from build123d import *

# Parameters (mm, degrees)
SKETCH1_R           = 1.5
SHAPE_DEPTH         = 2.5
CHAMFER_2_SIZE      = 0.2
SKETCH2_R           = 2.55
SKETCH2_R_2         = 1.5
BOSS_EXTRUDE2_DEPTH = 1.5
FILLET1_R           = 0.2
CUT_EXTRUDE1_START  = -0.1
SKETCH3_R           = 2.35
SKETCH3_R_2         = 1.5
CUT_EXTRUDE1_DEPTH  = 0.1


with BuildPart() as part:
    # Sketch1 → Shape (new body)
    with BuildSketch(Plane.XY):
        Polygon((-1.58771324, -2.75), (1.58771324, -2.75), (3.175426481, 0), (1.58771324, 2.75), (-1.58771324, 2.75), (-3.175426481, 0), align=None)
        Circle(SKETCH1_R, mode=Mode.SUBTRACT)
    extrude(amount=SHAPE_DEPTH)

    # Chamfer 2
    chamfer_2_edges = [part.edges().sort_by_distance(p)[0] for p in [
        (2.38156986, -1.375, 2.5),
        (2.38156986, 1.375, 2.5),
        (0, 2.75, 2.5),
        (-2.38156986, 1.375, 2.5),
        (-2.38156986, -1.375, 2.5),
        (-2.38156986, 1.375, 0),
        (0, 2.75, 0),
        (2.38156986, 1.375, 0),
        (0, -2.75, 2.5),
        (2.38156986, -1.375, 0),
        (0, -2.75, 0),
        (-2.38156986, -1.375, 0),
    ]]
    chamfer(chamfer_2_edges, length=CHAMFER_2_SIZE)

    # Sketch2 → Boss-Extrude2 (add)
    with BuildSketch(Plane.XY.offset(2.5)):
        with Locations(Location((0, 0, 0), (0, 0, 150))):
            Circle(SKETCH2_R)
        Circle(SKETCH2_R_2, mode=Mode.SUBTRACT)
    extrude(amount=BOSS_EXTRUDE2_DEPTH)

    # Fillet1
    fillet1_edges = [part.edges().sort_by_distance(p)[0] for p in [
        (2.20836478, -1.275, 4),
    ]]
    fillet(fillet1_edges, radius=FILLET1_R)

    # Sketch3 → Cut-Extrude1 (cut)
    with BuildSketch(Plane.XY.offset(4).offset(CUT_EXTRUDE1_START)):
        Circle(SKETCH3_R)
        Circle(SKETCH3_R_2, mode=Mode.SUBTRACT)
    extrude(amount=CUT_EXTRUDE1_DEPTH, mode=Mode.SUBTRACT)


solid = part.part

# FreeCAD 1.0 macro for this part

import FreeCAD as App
import Part
import Sketcher
Q = App.Units.Quantity


def edges_at(feature, points):
    """Names of the edges that pass closest to the given points."""
    edges = feature.Shape.Edges
    near = lambda p: min(range(len(edges)), key=lambda i: edges[i].distToShape(Part.Vertex(*p))[0])
    return sorted({f"Edge{near(p) + 1}" for p in points})


def add_polygon(sketch, points):
    """Adds a closed chain of lines whose ends are joined by coincident constraints."""
    first, n = sketch.GeometryCount, len(points)
    for a, b in zip(points, points[1:] + points[:1]):
        sketch.addGeometry(Part.LineSegment(App.Vector(*a, 0), App.Vector(*b, 0)), False)
    for i in range(n):
        sketch.addConstraint(Sketcher.Constraint("Coincident", first + i, 2, first + (i + 1) % n, 1))

doc = App.newDocument("Part")
body = doc.addObject("PartDesign::Body", "Body")

sketch1 = body.newObject("Sketcher::SketchObject", "Sketch")
sketch1.AttachmentSupport = (doc.getObject("XY_Plane"), [""])
sketch1.MapMode = "FlatFace"
add_polygon(sketch1, [(-1.6, -2.8), (1.6, -2.8), (3.2, 0), (1.6, 2.8), (-1.6, 2.8), (-3.2, 0)])
sketch1.addGeometry(Part.Circle(App.Vector(0, 0, 0), App.Vector(0, 0, 1), 1.5), False)
sketch1.addConstraint(Sketcher.Constraint("Horizontal", 0))
sketch1.addConstraint(Sketcher.Constraint("Horizontal", 3))
sketch1.addConstraint(Sketcher.Constraint("Coincident", 6, 3, -1, 1))
sketch1.addConstraint(Sketcher.Constraint("Symmetric", 0, 2, 3, 2, -1, 1))
sketch1.addConstraint(Sketcher.Constraint("Symmetric", 1, 2, 4, 2, -1, 1))
sketch1.addConstraint(Sketcher.Constraint("PointOnObject", 1, 2, -1))
sketch1.addConstraint(Sketcher.Constraint("Parallel", 2, 5))
sketch1.addConstraint(Sketcher.Constraint("Vertical", 0, 2, 2, 2))
sketch1.addConstraint(Sketcher.Constraint("Diameter", 6, Q("3 mm")))
sketch1.addConstraint(Sketcher.Constraint("Angle", 1, Q("60 deg")))
sketch1.addConstraint(Sketcher.Constraint("DistanceY", 0, 2, 2, 2, Q("5.5 mm")))
sketch1.addConstraint(Sketcher.Constraint("DistanceX", 0, 1, 0, 2, Q("3.175426 mm")))
pad1 = body.newObject("PartDesign::Pad", "Pad")
pad1.Profile = sketch1
pad1.Length = 2.5
doc.recompute()

chamfer = body.newObject("PartDesign::Chamfer", "Chamfer")
chamfer.Base = (pad1, edges_at(pad1, [
    (2.382, -1.375, 2.5),
    (2.382, 1.375, 2.5),
    (0, 2.75, 2.5),
    (-2.382, 1.375, 2.5),
    (-2.382, -1.375, 2.5),
    (-2.382, 1.375, 0),
    (0, 2.75, 0),
    (2.382, 1.375, 0),
    (0, -2.75, 2.5),
    (2.382, -1.375, 0),
    (0, -2.75, 0),
    (-2.382, -1.375, 0),
]))
chamfer.Size = 0.2

sketch2 = body.newObject("Sketcher::SketchObject", "Sketch001")
sketch2.AttachmentSupport = (doc.getObject("XY_Plane"), [""])
sketch2.MapMode = "FlatFace"
sketch2.AttachmentOffset = App.Placement(App.Vector(0, 0, 2.5), App.Rotation())
sketch2.addGeometry(Part.Circle(App.Vector(0, 0, 0), App.Vector(0, 0, 1), 2.5), False)
sketch2.addGeometry(Part.Circle(App.Vector(0, 0, 0), App.Vector(0, 0, 1), 1.5), False)
sketch2.addConstraint(Sketcher.Constraint("Coincident", 0, 3, -1, 1))
sketch2.addConstraint(Sketcher.Constraint("Coincident", 1, 3, -1, 1))
sketch2.addConstraint(Sketcher.Constraint("Diameter", 1, Q("3 mm")))
sketch2.addConstraint(Sketcher.Constraint("Diameter", 0, Q("5.1 mm")))
pad2 = body.newObject("PartDesign::Pad", "Pad001")
pad2.Profile = sketch2
pad2.Length = 1.5
doc.recompute()

fillet = body.newObject("PartDesign::Fillet", "Fillet")
fillet.Base = (pad2, edges_at(pad2, [(2.208, -1.275, 4)]))
fillet.Radius = 0.2

sketch3 = body.newObject("Sketcher::SketchObject", "Sketch002")
sketch3.AttachmentSupport = (doc.getObject("XY_Plane"), [""])
sketch3.MapMode = "FlatFace"
sketch3.AttachmentOffset = App.Placement(App.Vector(0, 0, 3.9), App.Rotation())
sketch3.addGeometry(Part.Circle(App.Vector(0, 0, 0), App.Vector(0, 0, 1), 2.4), False)
sketch3.addGeometry(Part.Circle(App.Vector(0, 0, 0), App.Vector(0, 0, 1), 1.5), False)
sketch3.addConstraint(Sketcher.Constraint("Coincident", 0, 3, -1, 1))
sketch3.addConstraint(Sketcher.Constraint("Coincident", 1, 3, -1, 1))
sketch3.addConstraint(Sketcher.Constraint("Diameter", 1, Q("3 mm")))
sketch3.addConstraint(Sketcher.Constraint("Diameter", 0, Q("4.7 mm")))
pocket1 = body.newObject("PartDesign::Pocket", "Pocket")
pocket1.Profile = sketch3
pocket1.Length = 0.1
pocket1.Reversed = True

doc.recompute()
